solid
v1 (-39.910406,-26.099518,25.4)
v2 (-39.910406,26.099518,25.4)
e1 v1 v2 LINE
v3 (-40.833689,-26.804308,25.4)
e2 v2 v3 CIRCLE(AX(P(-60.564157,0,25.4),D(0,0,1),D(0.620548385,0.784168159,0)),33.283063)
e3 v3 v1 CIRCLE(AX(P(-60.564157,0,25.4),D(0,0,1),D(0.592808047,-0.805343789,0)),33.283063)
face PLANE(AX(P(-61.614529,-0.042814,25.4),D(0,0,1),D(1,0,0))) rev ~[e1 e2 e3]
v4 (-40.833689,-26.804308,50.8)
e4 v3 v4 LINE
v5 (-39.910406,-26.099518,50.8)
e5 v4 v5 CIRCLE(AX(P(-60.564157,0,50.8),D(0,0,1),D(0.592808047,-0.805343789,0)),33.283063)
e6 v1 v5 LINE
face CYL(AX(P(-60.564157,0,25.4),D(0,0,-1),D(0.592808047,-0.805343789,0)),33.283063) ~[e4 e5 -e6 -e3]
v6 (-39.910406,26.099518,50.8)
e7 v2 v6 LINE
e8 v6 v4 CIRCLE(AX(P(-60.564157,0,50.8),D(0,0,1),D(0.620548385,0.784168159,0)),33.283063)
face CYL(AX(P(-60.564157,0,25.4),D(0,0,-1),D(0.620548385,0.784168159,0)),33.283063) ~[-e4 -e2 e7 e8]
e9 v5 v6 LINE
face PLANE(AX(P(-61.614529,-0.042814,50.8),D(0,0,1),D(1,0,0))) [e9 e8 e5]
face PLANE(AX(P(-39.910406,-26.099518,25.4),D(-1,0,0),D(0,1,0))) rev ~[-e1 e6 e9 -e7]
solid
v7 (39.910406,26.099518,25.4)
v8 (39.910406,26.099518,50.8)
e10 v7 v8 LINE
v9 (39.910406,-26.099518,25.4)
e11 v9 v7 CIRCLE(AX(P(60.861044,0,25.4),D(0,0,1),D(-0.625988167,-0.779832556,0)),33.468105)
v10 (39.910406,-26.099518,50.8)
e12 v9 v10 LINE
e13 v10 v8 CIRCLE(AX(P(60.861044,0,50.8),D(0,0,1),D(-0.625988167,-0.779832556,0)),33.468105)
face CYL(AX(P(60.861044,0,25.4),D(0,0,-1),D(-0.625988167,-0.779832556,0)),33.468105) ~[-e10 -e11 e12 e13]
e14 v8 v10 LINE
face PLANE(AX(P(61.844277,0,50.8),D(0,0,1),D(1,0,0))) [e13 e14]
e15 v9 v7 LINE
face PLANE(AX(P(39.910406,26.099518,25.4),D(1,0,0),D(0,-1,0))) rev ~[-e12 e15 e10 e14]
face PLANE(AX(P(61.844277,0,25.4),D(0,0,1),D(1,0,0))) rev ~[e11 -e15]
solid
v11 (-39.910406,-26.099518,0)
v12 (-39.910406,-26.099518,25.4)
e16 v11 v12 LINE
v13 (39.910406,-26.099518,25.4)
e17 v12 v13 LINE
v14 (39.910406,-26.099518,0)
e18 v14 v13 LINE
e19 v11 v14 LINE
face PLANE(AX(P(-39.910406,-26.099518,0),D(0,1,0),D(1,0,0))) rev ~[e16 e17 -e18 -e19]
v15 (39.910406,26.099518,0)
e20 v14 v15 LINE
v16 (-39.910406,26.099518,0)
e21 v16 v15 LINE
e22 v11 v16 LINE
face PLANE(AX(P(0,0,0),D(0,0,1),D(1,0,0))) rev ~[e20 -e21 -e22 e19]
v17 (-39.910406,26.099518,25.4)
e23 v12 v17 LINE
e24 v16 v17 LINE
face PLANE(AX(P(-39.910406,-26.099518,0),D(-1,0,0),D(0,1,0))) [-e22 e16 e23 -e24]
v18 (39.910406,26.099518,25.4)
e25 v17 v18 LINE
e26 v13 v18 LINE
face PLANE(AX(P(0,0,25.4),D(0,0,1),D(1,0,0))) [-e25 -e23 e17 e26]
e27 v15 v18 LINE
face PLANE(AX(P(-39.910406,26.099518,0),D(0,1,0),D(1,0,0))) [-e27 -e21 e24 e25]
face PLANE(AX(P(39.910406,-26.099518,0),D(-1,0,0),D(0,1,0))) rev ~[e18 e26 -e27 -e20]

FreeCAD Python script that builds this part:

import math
import FreeCAD as App
import Part
import Sketcher
Q = App.Units.Quantity

doc = App.newDocument("Part")
body = doc.addObject("PartDesign::Body", "Body")
body.AllowCompound = True

sketch1 = body.newObject("Sketcher::SketchObject", "Sketch")
sketch1.AttachmentSupport = (doc.getObject("XY_Plane"), [""])
sketch1.MapMode = "FlatFace"
sketch1.addGeometry([
    Part.LineSegment(App.Vector(-40, 26, 0), App.Vector(-40, -26, 0)),
    Part.LineSegment(App.Vector(-40, -26, 0), App.Vector(40, -26, 0)),
    Part.LineSegment(App.Vector(40, -26, 0), App.Vector(40, 26, 0)),
    Part.LineSegment(App.Vector(40, 26, 0), App.Vector(-40, 26, 0)),
], False)
sketch1.addConstraint([
    Sketcher.Constraint("Coincident", 0, 2, 1, 1),
    Sketcher.Constraint("Coincident", 1, 2, 2, 1),
    Sketcher.Constraint("Coincident", 2, 2, 3, 1),
    Sketcher.Constraint("Coincident", 3, 2, 0, 1),
    Sketcher.Constraint("Vertical", 0),
    Sketcher.Constraint("Horizontal", 1),
    Sketcher.Constraint("Vertical", 2),
    Sketcher.Constraint("Horizontal", 3),
    Sketcher.Constraint("Symmetric", 0, 2, 2, 2, -1, 1),
    Sketcher.Constraint("DistanceX", 1, 1, 1, 2, 79.820812),
    Sketcher.Constraint("DistanceY", 0, 2, 0, 1, 52.199036),
])
pad1 = body.newObject("PartDesign::Pad", "Pad")
pad1.Profile = sketch1
pad1.Length = Q("1 in")

sketch2 = body.newObject("Sketcher::SketchObject", "Sketch001")
sketch2.AttachmentSupport = (doc.getObject("XY_Plane"), [""])
sketch2.MapMode = "FlatFace"
sketch2.AttachmentOffset = App.Placement(App.Vector(0, 0, 1 * 25.4), App.Rotation())
sketch2.addGeometry([
    Part.LineSegment(App.Vector(-39.9, -26.1, 0), App.Vector(-39.9, 26.1, 0)),
    Part.ArcOfCircle(Part.Circle(App.Vector(-60.6, 0, 0), App.Vector(0, 0, 1), 33.3), math.radians(52), math.radians(306)),
    Part.ArcOfCircle(Part.Circle(App.Vector(-60.6, 0, 0), App.Vector(0, 0, 1), 33.3), math.radians(-53.64), math.radians(-51.64)),
    Part.ArcOfCircle(Part.Circle(App.Vector(60.9, 0, 0), App.Vector(0, 0, 1), 33.5), math.radians(-129), math.radians(129)),
    Part.LineSegment(App.Vector(39.9, 26.1, 0), App.Vector(39.9, -26.1, 0)),
], False)
sketch2.addConstraint([
    Sketcher.Constraint("Coincident", 0, 2, 1, 1),
    Sketcher.Constraint("Tangent", 1, 2, 2, 1),
    Sketcher.Constraint("Coincident", 2, 2, 0, 1),
    Sketcher.Constraint("Coincident", 3, 1, 4, 2),
    Sketcher.Constraint("Coincident", 4, 1, 3, 2),
    Sketcher.Constraint("Vertical", 0),
    Sketcher.Constraint("Vertical", 4),
    Sketcher.Constraint("Equal", 1, 2),
    Sketcher.Constraint("Symmetric", 0, 2, 3, 1, -1, 1),
    Sketcher.Constraint("PointOnObject", 1, 3, -1),
    Sketcher.Constraint("PointOnObject", 3, 3, -1),
    Sketcher.Constraint("Radius", 1, 33.283063),
    Sketcher.Constraint("Radius", 3, 33.468105),
    Sketcher.Constraint("DistanceX", 1, 3, 3, 3, 121.4252),
    Sketcher.Constraint("DistanceY", 0, 1, 0, 2, 52.199036),
    Sketcher.Constraint("DistanceX", 1, 2, -1, 1, 40.833689),
])
pad2 = body.newObject("PartDesign::Pad", "Pad001")
pad2.Profile = sketch2
pad2.Length = Q("1 in")

sketch3 = body.newObject("Sketcher::SketchObject", "Sketch002")
sketch3.AttachmentSupport = (doc.getObject("XY_Plane"), [""])
sketch3.MapMode = "FlatFace"
sketch3.AttachmentOffset = App.Placement(App.Vector(0, 0, 1 * 25.4), App.Rotation())
sketch3.addGeometry([
    Part.LineSegment(App.Vector(-39.9, -26.1, 0), App.Vector(-39.9, 26.1, 0)),
    Part.ArcOfCircle(Part.Circle(App.Vector(-60.6, 0, 0), App.Vector(0, 0, 1), 33.3), math.radians(52), math.radians(306)),
    Part.ArcOfCircle(Part.Circle(App.Vector(-60.6, 0, 0), App.Vector(0, 0, 1), 33.3), math.radians(-53.64), math.radians(-51.64)),
    Part.ArcOfCircle(Part.Circle(App.Vector(60.9, 0, 0), App.Vector(0, 0, 1), 33.5), math.radians(-129), math.radians(129)),
    Part.LineSegment(App.Vector(39.9, 26.1, 0), App.Vector(39.9, -26.1, 0)),
], False)
sketch3.addConstraint([
    Sketcher.Constraint("Coincident", 0, 2, 1, 1),
    Sketcher.Constraint("Tangent", 1, 2, 2, 1),
    Sketcher.Constraint("Coincident", 2, 2, 0, 1),
    Sketcher.Constraint("Coincident", 3, 1, 4, 2),
    Sketcher.Constraint("Coincident", 4, 1, 3, 2),
    Sketcher.Constraint("Vertical", 0),
    Sketcher.Constraint("Vertical", 4),
    Sketcher.Constraint("Equal", 1, 2),
    Sketcher.Constraint("Symmetric", 0, 2, 3, 1, -1, 1),
    Sketcher.Constraint("PointOnObject", 1, 3, -1),
    Sketcher.Constraint("PointOnObject", 3, 3, -1),
    Sketcher.Constraint("Radius", 1, 33.283063),
    Sketcher.Constraint("Radius", 3, 33.468105),
    Sketcher.Constraint("DistanceX", 1, 3, 3, 3, 121.4252),
    Sketcher.Constraint("DistanceY", 0, 1, 0, 2, 52.199036),
    Sketcher.Constraint("DistanceX", 1, 2, -1, 1, 40.833689),
])
pad3 = body.newObject("PartDesign::Pad", "Pad002")
pad3.Profile = sketch3
pad3.Length = Q("1 in")

doc.recompute()
